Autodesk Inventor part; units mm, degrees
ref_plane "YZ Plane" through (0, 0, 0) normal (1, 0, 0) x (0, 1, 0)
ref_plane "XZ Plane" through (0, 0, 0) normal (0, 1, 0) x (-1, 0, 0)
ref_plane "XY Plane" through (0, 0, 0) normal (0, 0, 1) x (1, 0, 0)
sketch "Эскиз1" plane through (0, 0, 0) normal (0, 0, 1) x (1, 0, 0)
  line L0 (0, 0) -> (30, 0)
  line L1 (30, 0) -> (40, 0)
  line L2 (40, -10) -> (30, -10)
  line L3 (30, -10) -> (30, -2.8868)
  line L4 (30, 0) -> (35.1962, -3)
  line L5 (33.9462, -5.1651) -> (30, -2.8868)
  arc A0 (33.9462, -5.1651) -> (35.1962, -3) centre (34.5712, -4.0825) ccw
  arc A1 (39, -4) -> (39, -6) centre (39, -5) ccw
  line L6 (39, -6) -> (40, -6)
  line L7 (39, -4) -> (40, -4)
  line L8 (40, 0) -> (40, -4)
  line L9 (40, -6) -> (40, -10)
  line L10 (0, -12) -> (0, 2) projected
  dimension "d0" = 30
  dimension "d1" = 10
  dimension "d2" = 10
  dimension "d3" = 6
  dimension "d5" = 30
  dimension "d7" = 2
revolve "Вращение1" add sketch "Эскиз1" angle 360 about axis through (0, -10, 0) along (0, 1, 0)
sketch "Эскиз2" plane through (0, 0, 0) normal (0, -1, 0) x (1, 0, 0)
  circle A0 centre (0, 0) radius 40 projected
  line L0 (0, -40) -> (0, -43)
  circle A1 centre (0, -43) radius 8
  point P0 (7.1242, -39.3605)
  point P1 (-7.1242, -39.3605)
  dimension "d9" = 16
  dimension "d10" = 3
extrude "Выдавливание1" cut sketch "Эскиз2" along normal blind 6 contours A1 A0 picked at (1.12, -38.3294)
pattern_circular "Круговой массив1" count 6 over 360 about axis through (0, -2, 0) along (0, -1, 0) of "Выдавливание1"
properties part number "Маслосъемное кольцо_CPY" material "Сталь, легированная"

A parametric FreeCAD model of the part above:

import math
import FreeCAD as App
import Part
import Sketcher
Q = App.Units.Quantity

doc = App.newDocument("Part")
params = doc.addObject("Spreadsheet::Sheet", "Params")
for row, (alias, value) in enumerate([
    ("sketch1_radius", "1 mm"),
    ("sketch1_width", "10 mm"),
    ("sketch1_length", "6 mm"),
    ("sketch1_width2", "1 mm"),
    ("sketch1_radius2", "1.25 mm"),
    ("revolution_angle", "360 deg"),
    ("sketch2_radius", "8 mm"),
    ("sketch2_radius2", "40 mm"),
    ("pocket1_length", "6 mm"),
], start=1):
    params.set(f"A{row}", alias)
    params.set(f"B{row}", "=" + value)
    params.setAlias(f"B{row}", alias)

body = doc.addObject("PartDesign::Body", "Body")

sketch1 = doc.addObject("Sketcher::SketchObject", "Sketch")
body.addObject(sketch1)
sketch1.AttachmentSupport = (doc.XY_Plane, [""])
sketch1.MapMode = "FlatFace"
sketch1.addGeometry([
    Part.LineSegment(App.Vector(40, 0, 0), App.Vector(30, 0, 0)),
    Part.LineSegment(App.Vector(30, 0, 0), App.Vector(35.2, -3, 0)),
    Part.ArcOfCircle(Part.Circle(App.Vector(34.6, -4.1, 0), App.Vector(0, 0, 1), 1.3), math.radians(-120), math.radians(60)),
    Part.LineSegment(App.Vector(33.9, -5.2, 0), App.Vector(30, -2.9, 0)),
    Part.LineSegment(App.Vector(30, -2.9, 0), App.Vector(30, -10, 0)),
    Part.LineSegment(App.Vector(30, -10, 0), App.Vector(40, -10, 0)),
    Part.LineSegment(App.Vector(40, -10, 0), App.Vector(40, -6, 0)),
    Part.LineSegment(App.Vector(40, -6, 0), App.Vector(39, -6, 0)),
    Part.ArcOfCircle(Part.Circle(App.Vector(39, -5, 0), App.Vector(0, 0, 1), 1), math.radians(90), math.radians(270)),
    Part.LineSegment(App.Vector(39, -4, 0), App.Vector(40, -4, 0)),
    Part.LineSegment(App.Vector(40, -4, 0), App.Vector(40, 0, 0)),
], False)
sketch1.addConstraint([
    Sketcher.Constraint("Coincident", 0, 2, 1, 1),
    Sketcher.Constraint("Tangent", 1, 2, 2, 2),
    Sketcher.Constraint("Tangent", 2, 1, 3, 1),
    Sketcher.Constraint("Coincident", 3, 2, 4, 1),
    Sketcher.Constraint("Coincident", 4, 2, 5, 1),
    Sketcher.Constraint("Coincident", 5, 2, 6, 1),
    Sketcher.Constraint("Coincident", 6, 2, 7, 1),
    Sketcher.Constraint("Tangent", 7, 2, 8, 2),
    Sketcher.Constraint("Tangent", 8, 1, 9, 1),
    Sketcher.Constraint("Coincident", 9, 2, 10, 1),
    Sketcher.Constraint("Coincident", 10, 2, 0, 1),
    Sketcher.Constraint("Horizontal", 0),
    Sketcher.Constraint("Vertical", 4),
    Sketcher.Constraint("Horizontal", 5),
    Sketcher.Constraint("Vertical", 6),
    Sketcher.Constraint("Horizontal", 7),
    Sketcher.Constraint("Horizontal", 9),
    Sketcher.Constraint("Vertical", 10),
    Sketcher.Constraint("PointOnObject", 0, 2, -1),
    Sketcher.Constraint("Parallel", 1, 3),
    Sketcher.Constraint("Vertical", 0, 2, 3, 2),
    Sketcher.Constraint("Vertical", 6, 2, 9, 2),
    Sketcher.Constraint("Equal", 6, 10),
    Sketcher.Constraint("Radius", 8, Q("1 mm")),
    Sketcher.Constraint("DistanceX", 0, 2, 0, 1, Q("10 mm")),
    Sketcher.Constraint("Angle", 1, Q("-29.9998 deg")),
    Sketcher.Constraint("Distance", 1, Q("6 mm")),
    Sketcher.Constraint("DistanceX", -1, 1, 0, 2, Q("30 mm")),
    Sketcher.Constraint("DistanceY", 4, 2, -1, 1, Q("10 mm")),
    Sketcher.Constraint("DistanceX", 7, 2, 7, 1, Q("1 mm")),
    Sketcher.Constraint("Radius", 2, Q("1.25 mm")),
])
sketch1.setExpression("Constraints[23]", "Params.sketch1_radius")
sketch1.setExpression("Constraints[24]", "Params.sketch1_width")
sketch1.setExpression("Constraints[26]", "Params.sketch1_length")
sketch1.setExpression("Constraints[29]", "Params.sketch1_width2")
sketch1.setExpression("Constraints[30]", "Params.sketch1_radius2")
revolution = doc.addObject("PartDesign::Revolution", "Revolution")
body.addObject(revolution)
revolution.Profile = sketch1
revolution.ReferenceAxis = (sketch1, ["V_Axis"])
revolution.setExpression("Angle", "Params.revolution_angle")

sketch2 = doc.addObject("Sketcher::SketchObject", "Sketch001")
body.addObject(sketch2)
sketch2.AttachmentSupport = (doc.XZ_Plane, [""])
sketch2.MapMode = "FlatFace"
sketch2.addGeometry([
    Part.ArcOfCircle(Part.Circle(App.Vector(0, -43, 0), App.Vector(0, 0, 1), 8), math.radians(27), math.radians(153)),
    Part.ArcOfCircle(Part.Circle(App.Vector(0, 0, 0), App.Vector(0, 0, 1), 40), math.radians(-100), math.radians(-80)),
], False)
sketch2.addConstraint([
    Sketcher.Constraint("Coincident", 0, 1, 1, 2),
    Sketcher.Constraint("Coincident", 1, 1, 0, 2),
    Sketcher.Constraint("Coincident", 1, 3, -1, 1),
    Sketcher.Constraint("PointOnObject", 0, 3, -2),
    Sketcher.Constraint("Radius", 0, Q("8 mm")),
    Sketcher.Constraint("Radius", 1, Q("40 mm")),
    Sketcher.Constraint("DistanceY", 0, 3, -1, 1, Q("43 mm")),
])
sketch2.setExpression("Constraints[4]", "Params.sketch2_radius")
sketch2.setExpression("Constraints[5]", "Params.sketch2_radius2")
pocket1 = doc.addObject("PartDesign::Pocket", "Pocket")
body.addObject(pocket1)
pocket1.Profile = sketch2
pocket1.setExpression("Length", "Params.pocket1_length")
pocket1.Reversed = True
doc.recompute()

polarpattern = doc.addObject("PartDesign::PolarPattern", "PolarPattern")
body.addObject(polarpattern)
polarpattern.Originals = [pocket1]
polarpattern.Axis = (doc.Y_Axis, [""])
polarpattern.Angle = 360
polarpattern.Occurrences = 6
body.Tip = polarpattern

doc.recompute()
